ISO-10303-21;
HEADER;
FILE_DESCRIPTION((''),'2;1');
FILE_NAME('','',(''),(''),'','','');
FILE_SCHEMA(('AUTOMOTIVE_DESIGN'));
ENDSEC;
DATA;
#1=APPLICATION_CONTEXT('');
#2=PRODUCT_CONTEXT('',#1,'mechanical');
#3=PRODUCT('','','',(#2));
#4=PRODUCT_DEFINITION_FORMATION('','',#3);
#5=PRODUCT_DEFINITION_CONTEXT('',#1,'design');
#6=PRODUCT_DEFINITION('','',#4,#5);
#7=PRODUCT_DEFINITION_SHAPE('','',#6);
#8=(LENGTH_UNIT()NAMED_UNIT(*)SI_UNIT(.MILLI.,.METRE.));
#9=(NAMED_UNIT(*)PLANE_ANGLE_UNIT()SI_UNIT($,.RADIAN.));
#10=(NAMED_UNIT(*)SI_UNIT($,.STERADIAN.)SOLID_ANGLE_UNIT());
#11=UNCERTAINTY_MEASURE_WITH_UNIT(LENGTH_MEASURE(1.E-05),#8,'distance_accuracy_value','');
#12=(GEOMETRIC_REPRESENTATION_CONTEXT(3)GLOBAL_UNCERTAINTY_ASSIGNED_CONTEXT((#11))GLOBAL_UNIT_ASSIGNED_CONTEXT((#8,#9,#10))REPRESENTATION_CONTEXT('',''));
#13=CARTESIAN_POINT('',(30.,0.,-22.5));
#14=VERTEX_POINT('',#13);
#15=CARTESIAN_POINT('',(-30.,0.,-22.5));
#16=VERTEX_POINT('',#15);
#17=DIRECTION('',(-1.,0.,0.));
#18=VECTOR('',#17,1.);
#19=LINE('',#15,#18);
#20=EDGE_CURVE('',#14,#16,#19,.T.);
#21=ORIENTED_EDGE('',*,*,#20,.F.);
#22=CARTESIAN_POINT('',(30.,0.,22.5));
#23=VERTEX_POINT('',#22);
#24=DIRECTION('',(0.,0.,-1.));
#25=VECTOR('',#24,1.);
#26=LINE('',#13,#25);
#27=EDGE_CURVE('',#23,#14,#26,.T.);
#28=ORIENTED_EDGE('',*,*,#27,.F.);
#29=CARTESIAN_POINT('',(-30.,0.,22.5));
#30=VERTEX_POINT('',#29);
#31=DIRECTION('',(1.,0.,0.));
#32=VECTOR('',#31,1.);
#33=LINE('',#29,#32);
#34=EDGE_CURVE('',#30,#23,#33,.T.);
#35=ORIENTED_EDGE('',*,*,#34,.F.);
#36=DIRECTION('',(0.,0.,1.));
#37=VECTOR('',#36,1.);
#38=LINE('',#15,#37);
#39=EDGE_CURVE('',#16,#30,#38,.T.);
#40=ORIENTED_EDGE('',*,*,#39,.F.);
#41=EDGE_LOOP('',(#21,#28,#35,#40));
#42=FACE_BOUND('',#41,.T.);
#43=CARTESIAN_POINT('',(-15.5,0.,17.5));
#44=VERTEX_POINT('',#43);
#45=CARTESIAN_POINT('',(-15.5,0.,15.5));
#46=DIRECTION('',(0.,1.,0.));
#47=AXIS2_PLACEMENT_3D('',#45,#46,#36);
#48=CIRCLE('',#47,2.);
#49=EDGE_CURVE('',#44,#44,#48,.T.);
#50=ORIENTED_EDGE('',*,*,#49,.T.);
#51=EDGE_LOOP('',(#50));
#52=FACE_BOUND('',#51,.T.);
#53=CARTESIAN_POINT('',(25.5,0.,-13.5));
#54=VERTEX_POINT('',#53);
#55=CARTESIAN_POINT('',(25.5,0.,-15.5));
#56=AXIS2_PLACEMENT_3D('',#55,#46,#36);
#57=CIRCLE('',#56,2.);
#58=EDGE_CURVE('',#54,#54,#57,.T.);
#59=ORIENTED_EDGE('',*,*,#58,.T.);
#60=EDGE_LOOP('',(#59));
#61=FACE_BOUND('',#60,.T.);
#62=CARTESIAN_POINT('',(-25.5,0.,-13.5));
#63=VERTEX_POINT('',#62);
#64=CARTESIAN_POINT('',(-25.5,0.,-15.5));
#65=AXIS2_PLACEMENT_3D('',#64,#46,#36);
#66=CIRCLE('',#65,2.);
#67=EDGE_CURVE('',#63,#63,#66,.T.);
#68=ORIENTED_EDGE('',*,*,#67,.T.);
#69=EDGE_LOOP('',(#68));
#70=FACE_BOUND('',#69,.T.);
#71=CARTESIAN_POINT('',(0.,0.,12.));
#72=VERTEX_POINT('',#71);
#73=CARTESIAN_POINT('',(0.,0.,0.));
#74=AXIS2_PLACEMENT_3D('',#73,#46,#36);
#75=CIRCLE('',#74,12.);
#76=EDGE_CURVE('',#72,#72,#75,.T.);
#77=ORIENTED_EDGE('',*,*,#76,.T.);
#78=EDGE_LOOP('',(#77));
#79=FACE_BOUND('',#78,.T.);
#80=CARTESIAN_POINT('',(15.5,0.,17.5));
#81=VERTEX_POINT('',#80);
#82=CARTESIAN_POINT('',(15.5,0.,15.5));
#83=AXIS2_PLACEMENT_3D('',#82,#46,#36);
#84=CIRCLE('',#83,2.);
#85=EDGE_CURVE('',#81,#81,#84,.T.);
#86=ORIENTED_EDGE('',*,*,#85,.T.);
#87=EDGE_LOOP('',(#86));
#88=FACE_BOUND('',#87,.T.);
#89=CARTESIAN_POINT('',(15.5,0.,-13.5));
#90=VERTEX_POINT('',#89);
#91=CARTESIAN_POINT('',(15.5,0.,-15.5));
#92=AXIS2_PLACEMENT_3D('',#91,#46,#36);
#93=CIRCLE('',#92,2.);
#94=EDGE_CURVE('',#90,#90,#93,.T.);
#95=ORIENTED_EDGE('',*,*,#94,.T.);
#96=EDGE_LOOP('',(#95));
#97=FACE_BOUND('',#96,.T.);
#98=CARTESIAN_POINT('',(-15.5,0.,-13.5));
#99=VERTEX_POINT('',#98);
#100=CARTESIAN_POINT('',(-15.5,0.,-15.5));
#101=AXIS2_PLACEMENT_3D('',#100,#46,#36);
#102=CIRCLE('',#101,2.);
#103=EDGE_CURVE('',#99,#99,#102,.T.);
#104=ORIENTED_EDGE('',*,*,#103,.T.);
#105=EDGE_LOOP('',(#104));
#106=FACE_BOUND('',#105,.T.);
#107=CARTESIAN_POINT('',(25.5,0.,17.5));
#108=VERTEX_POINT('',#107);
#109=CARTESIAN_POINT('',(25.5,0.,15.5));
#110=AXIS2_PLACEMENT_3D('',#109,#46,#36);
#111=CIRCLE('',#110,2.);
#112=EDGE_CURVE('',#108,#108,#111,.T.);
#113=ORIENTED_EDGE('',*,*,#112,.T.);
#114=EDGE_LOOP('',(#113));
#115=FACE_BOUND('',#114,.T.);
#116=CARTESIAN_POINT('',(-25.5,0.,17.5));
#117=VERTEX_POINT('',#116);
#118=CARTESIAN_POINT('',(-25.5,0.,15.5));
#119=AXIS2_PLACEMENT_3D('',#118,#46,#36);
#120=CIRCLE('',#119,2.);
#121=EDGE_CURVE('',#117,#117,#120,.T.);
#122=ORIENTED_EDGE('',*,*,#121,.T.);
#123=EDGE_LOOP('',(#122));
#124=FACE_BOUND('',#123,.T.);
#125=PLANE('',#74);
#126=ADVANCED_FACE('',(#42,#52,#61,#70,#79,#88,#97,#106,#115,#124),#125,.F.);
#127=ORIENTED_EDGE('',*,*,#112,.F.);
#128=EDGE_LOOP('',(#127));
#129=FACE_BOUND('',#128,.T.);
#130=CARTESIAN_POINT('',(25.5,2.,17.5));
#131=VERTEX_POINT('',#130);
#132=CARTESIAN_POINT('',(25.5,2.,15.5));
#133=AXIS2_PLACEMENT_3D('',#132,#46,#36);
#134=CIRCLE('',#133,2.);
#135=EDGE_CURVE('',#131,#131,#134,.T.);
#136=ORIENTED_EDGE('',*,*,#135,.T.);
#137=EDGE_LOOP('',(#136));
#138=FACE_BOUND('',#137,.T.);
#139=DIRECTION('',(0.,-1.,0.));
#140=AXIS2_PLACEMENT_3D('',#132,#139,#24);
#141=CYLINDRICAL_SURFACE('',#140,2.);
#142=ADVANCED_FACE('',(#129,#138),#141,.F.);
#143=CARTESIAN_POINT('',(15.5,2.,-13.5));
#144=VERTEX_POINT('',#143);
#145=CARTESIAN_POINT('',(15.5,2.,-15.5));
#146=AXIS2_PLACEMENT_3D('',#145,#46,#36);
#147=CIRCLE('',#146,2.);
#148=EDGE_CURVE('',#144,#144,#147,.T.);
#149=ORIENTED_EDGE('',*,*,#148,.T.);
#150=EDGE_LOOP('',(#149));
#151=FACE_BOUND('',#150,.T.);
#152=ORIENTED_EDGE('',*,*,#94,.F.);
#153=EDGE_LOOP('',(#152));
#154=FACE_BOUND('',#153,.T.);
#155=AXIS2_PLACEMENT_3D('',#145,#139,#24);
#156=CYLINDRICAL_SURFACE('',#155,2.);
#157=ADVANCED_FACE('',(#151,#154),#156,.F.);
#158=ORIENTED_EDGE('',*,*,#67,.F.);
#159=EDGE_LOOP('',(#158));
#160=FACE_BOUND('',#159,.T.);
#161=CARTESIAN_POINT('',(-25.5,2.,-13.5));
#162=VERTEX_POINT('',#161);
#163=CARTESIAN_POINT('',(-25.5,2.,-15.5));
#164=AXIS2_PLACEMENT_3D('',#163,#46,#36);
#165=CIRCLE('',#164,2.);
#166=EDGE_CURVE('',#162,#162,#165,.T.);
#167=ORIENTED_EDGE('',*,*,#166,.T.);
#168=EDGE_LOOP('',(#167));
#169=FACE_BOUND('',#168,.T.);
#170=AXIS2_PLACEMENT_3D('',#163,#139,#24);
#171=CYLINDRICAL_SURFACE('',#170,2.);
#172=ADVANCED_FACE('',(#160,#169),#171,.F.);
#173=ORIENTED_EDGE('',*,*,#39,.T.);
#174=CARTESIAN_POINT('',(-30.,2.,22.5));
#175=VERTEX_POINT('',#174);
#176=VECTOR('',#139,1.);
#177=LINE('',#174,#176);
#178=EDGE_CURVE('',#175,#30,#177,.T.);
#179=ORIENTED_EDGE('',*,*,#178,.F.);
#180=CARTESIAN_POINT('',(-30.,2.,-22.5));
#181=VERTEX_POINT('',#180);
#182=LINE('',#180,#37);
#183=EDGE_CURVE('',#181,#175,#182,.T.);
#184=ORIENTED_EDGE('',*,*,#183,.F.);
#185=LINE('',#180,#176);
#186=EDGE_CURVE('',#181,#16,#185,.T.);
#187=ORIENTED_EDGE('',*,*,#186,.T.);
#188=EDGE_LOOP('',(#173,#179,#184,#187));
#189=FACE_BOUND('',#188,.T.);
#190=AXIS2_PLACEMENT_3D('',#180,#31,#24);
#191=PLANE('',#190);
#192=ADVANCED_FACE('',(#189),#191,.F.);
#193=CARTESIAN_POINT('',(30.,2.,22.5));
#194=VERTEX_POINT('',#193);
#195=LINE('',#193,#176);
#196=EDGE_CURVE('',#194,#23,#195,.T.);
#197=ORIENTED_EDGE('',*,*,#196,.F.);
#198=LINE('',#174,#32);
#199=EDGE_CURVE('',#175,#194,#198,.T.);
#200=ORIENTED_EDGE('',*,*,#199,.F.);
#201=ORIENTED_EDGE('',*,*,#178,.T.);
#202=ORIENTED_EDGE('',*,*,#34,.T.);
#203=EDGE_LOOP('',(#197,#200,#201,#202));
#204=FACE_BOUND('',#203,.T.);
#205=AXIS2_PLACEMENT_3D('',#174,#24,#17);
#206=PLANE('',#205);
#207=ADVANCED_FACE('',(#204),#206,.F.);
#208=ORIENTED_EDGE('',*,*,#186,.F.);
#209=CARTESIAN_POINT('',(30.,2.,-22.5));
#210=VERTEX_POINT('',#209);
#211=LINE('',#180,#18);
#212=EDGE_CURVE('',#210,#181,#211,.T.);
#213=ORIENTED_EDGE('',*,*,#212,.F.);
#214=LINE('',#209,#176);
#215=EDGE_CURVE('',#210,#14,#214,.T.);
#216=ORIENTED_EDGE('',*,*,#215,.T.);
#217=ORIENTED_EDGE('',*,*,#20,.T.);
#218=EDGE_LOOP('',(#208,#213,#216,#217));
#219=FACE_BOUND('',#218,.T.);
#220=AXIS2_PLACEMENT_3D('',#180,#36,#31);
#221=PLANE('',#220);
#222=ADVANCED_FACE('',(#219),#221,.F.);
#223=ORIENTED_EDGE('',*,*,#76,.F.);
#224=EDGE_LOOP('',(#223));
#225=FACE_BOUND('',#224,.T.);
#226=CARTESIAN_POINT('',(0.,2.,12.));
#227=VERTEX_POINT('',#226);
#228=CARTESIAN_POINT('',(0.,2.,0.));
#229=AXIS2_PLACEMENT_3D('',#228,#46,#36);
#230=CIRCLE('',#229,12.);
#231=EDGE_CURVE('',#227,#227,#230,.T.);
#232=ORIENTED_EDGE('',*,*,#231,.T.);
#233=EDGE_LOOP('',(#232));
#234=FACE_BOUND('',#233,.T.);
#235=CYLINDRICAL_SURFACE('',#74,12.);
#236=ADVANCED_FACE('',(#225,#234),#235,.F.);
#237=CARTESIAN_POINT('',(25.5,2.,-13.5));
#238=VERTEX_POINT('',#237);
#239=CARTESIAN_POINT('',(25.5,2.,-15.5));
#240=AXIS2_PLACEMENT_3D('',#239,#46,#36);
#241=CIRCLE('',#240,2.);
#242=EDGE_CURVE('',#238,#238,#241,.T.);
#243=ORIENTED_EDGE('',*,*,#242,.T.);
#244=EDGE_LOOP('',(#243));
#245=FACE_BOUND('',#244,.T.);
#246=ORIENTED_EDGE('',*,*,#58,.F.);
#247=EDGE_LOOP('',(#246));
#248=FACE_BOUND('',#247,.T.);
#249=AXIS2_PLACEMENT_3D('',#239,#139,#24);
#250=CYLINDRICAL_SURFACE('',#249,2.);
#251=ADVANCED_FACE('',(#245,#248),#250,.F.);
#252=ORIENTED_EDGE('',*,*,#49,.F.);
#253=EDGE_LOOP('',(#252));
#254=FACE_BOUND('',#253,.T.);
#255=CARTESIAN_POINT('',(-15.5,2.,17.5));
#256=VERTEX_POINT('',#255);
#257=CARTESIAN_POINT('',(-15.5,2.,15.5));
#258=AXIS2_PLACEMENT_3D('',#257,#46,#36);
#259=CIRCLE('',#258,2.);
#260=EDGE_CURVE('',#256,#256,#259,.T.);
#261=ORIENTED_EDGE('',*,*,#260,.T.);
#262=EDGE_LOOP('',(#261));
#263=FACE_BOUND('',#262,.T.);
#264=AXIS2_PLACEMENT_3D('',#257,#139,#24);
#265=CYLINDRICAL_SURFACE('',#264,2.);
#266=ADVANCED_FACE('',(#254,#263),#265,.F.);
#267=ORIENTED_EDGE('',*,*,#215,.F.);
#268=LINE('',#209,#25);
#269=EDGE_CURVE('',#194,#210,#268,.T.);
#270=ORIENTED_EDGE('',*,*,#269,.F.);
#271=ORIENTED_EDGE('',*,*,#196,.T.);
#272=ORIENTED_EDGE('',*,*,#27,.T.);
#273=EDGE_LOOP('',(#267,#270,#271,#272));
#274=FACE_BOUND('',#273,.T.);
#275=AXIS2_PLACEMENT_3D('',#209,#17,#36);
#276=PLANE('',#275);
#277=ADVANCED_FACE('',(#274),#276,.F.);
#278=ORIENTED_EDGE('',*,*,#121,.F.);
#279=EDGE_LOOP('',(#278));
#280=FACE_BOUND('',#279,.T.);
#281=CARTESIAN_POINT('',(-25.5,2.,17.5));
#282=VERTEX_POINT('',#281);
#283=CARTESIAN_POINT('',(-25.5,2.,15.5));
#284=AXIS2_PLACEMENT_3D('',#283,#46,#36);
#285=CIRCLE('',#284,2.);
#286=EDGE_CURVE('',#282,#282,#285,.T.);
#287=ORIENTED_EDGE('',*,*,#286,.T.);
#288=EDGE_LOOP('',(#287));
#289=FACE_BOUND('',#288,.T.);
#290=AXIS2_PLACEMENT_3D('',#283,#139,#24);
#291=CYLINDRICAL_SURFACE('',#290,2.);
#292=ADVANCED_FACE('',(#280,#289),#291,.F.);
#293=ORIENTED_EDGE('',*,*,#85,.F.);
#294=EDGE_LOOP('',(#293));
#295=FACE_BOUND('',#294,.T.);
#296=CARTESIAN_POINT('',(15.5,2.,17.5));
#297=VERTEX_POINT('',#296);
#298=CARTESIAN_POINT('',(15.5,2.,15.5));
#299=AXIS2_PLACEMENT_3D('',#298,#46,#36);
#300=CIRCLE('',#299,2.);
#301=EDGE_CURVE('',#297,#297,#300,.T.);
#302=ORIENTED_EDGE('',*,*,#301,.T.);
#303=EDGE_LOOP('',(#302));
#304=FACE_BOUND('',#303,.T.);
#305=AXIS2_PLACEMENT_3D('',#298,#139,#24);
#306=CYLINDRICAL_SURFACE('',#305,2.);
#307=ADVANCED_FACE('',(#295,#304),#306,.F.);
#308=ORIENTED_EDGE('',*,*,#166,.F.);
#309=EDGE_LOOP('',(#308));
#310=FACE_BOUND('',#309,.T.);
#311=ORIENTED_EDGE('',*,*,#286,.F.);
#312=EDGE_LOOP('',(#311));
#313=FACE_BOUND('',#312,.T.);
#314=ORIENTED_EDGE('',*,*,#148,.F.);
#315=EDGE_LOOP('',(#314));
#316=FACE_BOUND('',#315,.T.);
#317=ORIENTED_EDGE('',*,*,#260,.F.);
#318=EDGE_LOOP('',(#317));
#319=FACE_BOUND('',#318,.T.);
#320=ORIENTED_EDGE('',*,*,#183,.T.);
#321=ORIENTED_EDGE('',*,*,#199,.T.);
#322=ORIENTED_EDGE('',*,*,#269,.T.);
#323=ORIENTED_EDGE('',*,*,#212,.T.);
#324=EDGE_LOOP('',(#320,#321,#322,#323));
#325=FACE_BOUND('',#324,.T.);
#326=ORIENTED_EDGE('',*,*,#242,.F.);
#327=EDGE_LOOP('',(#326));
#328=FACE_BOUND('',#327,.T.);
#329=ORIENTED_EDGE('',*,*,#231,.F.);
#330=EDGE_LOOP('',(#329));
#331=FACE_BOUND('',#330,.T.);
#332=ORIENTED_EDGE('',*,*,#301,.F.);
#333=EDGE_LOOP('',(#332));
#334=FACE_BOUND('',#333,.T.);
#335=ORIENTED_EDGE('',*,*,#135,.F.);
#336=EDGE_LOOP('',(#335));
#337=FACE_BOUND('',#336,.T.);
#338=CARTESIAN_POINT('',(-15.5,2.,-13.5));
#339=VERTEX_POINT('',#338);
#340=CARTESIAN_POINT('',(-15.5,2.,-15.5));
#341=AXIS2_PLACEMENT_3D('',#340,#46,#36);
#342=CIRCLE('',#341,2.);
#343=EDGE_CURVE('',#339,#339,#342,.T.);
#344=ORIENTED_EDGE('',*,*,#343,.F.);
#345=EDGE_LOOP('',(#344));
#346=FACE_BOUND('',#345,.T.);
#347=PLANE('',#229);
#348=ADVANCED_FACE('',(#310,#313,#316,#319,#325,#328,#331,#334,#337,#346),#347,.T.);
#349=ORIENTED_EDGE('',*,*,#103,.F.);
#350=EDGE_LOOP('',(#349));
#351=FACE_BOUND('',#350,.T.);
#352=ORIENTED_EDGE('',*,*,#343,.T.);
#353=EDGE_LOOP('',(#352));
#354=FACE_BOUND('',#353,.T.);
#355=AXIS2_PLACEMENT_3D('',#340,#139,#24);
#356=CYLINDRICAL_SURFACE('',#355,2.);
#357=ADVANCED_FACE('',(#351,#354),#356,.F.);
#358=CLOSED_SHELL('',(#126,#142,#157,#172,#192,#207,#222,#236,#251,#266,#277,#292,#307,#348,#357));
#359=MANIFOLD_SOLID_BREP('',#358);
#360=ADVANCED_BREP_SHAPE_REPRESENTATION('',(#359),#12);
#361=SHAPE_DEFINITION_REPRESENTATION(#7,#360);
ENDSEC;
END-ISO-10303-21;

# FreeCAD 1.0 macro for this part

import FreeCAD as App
import Part
import Sketcher

V = App.Vector


def add_polygon(sketch, points):
    """Adds a closed chain of lines whose ends are joined by coincident constraints."""
    first, n = sketch.GeometryCount, len(points)
    for a, b in zip(points, points[1:] + points[:1]):
        sketch.addGeometry(Part.LineSegment(App.Vector(*a, 0), App.Vector(*b, 0)), False)
    for i in range(n):
        sketch.addConstraint(Sketcher.Constraint("Coincident", first + i, 2, first + (i + 1) % n, 1))

doc = App.newDocument("Part")
body = doc.addObject("PartDesign::Body", "Body")

# Sketch on XZ plane
sketch1 = body.newObject("Sketcher::SketchObject", "Sketch")
sketch1.AttachmentSupport = (doc.getObject("XZ_Plane"), [""])
sketch1.MapMode = "FlatFace"
add_polygon(sketch1, [(-30, -22.5), (-30, 22.5), (30, 22.5), (30, -22.5)])  # lines 0-3
sketch1.addGeometry(Part.Circle(V(-25.5, 15.5, 0), V(0, 0, 1), 2), False)  # 4
sketch1.addGeometry(Part.Circle(V(-15.5, 15.5, 0), V(0, 0, 1), 2), False)  # 5
sketch1.addGeometry(Part.Circle(V(15.5, 15.5, 0), V(0, 0, 1), 2), False)  # 6
sketch1.addGeometry(Part.Circle(V(25.5, 15.5, 0), V(0, 0, 1), 2), False)  # 7
sketch1.addGeometry(Part.Circle(V(-25.5, -15.5, 0), V(0, 0, 1), 2), False)  # 8
sketch1.addGeometry(Part.Circle(V(-15.5, -15.5, 0), V(0, 0, 1), 2), False)  # 9
sketch1.addGeometry(Part.Circle(V(15.5, -15.5, 0), V(0, 0, 1), 2), False)  # 10
sketch1.addGeometry(Part.Circle(V(25.5, -15.5, 0), V(0, 0, 1), 2), False)  # 11
sketch1.addConstraint([
    Sketcher.Constraint("Vertical", 0),
    Sketcher.Constraint("Horizontal", 1),
    Sketcher.Constraint("Vertical", 2),
    Sketcher.Constraint("Horizontal", 3),
    Sketcher.Constraint("Equal", 4, 5),
    Sketcher.Constraint("Equal", 5, 6),
    Sketcher.Constraint("Equal", 6, 7),
    Sketcher.Constraint("Equal", 7, 8),
    Sketcher.Constraint("Equal", 8, 9),
    Sketcher.Constraint("Equal", 9, 10),
    Sketcher.Constraint("Equal", 10, 11),
    Sketcher.Constraint("Symmetric", 7, 3, 8, 3, -1, 1),
    Sketcher.Constraint("Symmetric", 6, 3, 9, 3, -1, 1),
    Sketcher.Constraint("Symmetric", 5, 3, 10, 3, -1, 1),
    Sketcher.Constraint("Symmetric", 4, 3, 11, 3, -1, 1),
    Sketcher.Constraint("Symmetric", 0, 2, 2, 2, -1, 1),
    Sketcher.Constraint("Symmetric", 5, 3, 6, 3, -2),
    Sketcher.Constraint("Symmetric", 4, 3, 7, 3, -2),
    Sketcher.Constraint("Horizontal", 4, 3, 5, 3),
    Sketcher.Constraint("Diameter", 4, 4.0),
    Sketcher.Constraint("DistanceX", 1, 1, 1, 2, 60.0),
    Sketcher.Constraint("DistanceY", 0, 1, 0, 2, 45.0),
    Sketcher.Constraint("DistanceX", 4, 3, 5, 3, 10.0),
    Sketcher.Constraint("DistanceX", 5, 3, 6, 3, 31.0),
    Sketcher.Constraint("DistanceY", 8, 3, 4, 3, 31.0),
])
pad1 = body.newObject("PartDesign::Pad", "Pad")
pad1.Profile = sketch1
pad1.Length = 2
pad1.Reversed = True

# Sketch on XZ plane
sketch2 = body.newObject("Sketcher::SketchObject", "Sketch001")
sketch2.AttachmentSupport = (doc.getObject("XZ_Plane"), [""])
sketch2.MapMode = "FlatFace"
sketch2.AttachmentOffset = App.Placement(V(0, 0, -2), App.Rotation())
sketch2.addGeometry(Part.Circle(V(0, 0, 0), V(0, 0, 1), 12), False)
sketch2.addConstraint([
    Sketcher.Constraint("Coincident", 0, 3, -1, 1),
    Sketcher.Constraint("Diameter", 0, 24.0),
])
pocket1 = body.newObject("PartDesign::Pocket", "Pocket")
pocket1.Profile = sketch2
pocket1.Type = "ThroughAll"
pocket1.Reversed = True

doc.recompute()
